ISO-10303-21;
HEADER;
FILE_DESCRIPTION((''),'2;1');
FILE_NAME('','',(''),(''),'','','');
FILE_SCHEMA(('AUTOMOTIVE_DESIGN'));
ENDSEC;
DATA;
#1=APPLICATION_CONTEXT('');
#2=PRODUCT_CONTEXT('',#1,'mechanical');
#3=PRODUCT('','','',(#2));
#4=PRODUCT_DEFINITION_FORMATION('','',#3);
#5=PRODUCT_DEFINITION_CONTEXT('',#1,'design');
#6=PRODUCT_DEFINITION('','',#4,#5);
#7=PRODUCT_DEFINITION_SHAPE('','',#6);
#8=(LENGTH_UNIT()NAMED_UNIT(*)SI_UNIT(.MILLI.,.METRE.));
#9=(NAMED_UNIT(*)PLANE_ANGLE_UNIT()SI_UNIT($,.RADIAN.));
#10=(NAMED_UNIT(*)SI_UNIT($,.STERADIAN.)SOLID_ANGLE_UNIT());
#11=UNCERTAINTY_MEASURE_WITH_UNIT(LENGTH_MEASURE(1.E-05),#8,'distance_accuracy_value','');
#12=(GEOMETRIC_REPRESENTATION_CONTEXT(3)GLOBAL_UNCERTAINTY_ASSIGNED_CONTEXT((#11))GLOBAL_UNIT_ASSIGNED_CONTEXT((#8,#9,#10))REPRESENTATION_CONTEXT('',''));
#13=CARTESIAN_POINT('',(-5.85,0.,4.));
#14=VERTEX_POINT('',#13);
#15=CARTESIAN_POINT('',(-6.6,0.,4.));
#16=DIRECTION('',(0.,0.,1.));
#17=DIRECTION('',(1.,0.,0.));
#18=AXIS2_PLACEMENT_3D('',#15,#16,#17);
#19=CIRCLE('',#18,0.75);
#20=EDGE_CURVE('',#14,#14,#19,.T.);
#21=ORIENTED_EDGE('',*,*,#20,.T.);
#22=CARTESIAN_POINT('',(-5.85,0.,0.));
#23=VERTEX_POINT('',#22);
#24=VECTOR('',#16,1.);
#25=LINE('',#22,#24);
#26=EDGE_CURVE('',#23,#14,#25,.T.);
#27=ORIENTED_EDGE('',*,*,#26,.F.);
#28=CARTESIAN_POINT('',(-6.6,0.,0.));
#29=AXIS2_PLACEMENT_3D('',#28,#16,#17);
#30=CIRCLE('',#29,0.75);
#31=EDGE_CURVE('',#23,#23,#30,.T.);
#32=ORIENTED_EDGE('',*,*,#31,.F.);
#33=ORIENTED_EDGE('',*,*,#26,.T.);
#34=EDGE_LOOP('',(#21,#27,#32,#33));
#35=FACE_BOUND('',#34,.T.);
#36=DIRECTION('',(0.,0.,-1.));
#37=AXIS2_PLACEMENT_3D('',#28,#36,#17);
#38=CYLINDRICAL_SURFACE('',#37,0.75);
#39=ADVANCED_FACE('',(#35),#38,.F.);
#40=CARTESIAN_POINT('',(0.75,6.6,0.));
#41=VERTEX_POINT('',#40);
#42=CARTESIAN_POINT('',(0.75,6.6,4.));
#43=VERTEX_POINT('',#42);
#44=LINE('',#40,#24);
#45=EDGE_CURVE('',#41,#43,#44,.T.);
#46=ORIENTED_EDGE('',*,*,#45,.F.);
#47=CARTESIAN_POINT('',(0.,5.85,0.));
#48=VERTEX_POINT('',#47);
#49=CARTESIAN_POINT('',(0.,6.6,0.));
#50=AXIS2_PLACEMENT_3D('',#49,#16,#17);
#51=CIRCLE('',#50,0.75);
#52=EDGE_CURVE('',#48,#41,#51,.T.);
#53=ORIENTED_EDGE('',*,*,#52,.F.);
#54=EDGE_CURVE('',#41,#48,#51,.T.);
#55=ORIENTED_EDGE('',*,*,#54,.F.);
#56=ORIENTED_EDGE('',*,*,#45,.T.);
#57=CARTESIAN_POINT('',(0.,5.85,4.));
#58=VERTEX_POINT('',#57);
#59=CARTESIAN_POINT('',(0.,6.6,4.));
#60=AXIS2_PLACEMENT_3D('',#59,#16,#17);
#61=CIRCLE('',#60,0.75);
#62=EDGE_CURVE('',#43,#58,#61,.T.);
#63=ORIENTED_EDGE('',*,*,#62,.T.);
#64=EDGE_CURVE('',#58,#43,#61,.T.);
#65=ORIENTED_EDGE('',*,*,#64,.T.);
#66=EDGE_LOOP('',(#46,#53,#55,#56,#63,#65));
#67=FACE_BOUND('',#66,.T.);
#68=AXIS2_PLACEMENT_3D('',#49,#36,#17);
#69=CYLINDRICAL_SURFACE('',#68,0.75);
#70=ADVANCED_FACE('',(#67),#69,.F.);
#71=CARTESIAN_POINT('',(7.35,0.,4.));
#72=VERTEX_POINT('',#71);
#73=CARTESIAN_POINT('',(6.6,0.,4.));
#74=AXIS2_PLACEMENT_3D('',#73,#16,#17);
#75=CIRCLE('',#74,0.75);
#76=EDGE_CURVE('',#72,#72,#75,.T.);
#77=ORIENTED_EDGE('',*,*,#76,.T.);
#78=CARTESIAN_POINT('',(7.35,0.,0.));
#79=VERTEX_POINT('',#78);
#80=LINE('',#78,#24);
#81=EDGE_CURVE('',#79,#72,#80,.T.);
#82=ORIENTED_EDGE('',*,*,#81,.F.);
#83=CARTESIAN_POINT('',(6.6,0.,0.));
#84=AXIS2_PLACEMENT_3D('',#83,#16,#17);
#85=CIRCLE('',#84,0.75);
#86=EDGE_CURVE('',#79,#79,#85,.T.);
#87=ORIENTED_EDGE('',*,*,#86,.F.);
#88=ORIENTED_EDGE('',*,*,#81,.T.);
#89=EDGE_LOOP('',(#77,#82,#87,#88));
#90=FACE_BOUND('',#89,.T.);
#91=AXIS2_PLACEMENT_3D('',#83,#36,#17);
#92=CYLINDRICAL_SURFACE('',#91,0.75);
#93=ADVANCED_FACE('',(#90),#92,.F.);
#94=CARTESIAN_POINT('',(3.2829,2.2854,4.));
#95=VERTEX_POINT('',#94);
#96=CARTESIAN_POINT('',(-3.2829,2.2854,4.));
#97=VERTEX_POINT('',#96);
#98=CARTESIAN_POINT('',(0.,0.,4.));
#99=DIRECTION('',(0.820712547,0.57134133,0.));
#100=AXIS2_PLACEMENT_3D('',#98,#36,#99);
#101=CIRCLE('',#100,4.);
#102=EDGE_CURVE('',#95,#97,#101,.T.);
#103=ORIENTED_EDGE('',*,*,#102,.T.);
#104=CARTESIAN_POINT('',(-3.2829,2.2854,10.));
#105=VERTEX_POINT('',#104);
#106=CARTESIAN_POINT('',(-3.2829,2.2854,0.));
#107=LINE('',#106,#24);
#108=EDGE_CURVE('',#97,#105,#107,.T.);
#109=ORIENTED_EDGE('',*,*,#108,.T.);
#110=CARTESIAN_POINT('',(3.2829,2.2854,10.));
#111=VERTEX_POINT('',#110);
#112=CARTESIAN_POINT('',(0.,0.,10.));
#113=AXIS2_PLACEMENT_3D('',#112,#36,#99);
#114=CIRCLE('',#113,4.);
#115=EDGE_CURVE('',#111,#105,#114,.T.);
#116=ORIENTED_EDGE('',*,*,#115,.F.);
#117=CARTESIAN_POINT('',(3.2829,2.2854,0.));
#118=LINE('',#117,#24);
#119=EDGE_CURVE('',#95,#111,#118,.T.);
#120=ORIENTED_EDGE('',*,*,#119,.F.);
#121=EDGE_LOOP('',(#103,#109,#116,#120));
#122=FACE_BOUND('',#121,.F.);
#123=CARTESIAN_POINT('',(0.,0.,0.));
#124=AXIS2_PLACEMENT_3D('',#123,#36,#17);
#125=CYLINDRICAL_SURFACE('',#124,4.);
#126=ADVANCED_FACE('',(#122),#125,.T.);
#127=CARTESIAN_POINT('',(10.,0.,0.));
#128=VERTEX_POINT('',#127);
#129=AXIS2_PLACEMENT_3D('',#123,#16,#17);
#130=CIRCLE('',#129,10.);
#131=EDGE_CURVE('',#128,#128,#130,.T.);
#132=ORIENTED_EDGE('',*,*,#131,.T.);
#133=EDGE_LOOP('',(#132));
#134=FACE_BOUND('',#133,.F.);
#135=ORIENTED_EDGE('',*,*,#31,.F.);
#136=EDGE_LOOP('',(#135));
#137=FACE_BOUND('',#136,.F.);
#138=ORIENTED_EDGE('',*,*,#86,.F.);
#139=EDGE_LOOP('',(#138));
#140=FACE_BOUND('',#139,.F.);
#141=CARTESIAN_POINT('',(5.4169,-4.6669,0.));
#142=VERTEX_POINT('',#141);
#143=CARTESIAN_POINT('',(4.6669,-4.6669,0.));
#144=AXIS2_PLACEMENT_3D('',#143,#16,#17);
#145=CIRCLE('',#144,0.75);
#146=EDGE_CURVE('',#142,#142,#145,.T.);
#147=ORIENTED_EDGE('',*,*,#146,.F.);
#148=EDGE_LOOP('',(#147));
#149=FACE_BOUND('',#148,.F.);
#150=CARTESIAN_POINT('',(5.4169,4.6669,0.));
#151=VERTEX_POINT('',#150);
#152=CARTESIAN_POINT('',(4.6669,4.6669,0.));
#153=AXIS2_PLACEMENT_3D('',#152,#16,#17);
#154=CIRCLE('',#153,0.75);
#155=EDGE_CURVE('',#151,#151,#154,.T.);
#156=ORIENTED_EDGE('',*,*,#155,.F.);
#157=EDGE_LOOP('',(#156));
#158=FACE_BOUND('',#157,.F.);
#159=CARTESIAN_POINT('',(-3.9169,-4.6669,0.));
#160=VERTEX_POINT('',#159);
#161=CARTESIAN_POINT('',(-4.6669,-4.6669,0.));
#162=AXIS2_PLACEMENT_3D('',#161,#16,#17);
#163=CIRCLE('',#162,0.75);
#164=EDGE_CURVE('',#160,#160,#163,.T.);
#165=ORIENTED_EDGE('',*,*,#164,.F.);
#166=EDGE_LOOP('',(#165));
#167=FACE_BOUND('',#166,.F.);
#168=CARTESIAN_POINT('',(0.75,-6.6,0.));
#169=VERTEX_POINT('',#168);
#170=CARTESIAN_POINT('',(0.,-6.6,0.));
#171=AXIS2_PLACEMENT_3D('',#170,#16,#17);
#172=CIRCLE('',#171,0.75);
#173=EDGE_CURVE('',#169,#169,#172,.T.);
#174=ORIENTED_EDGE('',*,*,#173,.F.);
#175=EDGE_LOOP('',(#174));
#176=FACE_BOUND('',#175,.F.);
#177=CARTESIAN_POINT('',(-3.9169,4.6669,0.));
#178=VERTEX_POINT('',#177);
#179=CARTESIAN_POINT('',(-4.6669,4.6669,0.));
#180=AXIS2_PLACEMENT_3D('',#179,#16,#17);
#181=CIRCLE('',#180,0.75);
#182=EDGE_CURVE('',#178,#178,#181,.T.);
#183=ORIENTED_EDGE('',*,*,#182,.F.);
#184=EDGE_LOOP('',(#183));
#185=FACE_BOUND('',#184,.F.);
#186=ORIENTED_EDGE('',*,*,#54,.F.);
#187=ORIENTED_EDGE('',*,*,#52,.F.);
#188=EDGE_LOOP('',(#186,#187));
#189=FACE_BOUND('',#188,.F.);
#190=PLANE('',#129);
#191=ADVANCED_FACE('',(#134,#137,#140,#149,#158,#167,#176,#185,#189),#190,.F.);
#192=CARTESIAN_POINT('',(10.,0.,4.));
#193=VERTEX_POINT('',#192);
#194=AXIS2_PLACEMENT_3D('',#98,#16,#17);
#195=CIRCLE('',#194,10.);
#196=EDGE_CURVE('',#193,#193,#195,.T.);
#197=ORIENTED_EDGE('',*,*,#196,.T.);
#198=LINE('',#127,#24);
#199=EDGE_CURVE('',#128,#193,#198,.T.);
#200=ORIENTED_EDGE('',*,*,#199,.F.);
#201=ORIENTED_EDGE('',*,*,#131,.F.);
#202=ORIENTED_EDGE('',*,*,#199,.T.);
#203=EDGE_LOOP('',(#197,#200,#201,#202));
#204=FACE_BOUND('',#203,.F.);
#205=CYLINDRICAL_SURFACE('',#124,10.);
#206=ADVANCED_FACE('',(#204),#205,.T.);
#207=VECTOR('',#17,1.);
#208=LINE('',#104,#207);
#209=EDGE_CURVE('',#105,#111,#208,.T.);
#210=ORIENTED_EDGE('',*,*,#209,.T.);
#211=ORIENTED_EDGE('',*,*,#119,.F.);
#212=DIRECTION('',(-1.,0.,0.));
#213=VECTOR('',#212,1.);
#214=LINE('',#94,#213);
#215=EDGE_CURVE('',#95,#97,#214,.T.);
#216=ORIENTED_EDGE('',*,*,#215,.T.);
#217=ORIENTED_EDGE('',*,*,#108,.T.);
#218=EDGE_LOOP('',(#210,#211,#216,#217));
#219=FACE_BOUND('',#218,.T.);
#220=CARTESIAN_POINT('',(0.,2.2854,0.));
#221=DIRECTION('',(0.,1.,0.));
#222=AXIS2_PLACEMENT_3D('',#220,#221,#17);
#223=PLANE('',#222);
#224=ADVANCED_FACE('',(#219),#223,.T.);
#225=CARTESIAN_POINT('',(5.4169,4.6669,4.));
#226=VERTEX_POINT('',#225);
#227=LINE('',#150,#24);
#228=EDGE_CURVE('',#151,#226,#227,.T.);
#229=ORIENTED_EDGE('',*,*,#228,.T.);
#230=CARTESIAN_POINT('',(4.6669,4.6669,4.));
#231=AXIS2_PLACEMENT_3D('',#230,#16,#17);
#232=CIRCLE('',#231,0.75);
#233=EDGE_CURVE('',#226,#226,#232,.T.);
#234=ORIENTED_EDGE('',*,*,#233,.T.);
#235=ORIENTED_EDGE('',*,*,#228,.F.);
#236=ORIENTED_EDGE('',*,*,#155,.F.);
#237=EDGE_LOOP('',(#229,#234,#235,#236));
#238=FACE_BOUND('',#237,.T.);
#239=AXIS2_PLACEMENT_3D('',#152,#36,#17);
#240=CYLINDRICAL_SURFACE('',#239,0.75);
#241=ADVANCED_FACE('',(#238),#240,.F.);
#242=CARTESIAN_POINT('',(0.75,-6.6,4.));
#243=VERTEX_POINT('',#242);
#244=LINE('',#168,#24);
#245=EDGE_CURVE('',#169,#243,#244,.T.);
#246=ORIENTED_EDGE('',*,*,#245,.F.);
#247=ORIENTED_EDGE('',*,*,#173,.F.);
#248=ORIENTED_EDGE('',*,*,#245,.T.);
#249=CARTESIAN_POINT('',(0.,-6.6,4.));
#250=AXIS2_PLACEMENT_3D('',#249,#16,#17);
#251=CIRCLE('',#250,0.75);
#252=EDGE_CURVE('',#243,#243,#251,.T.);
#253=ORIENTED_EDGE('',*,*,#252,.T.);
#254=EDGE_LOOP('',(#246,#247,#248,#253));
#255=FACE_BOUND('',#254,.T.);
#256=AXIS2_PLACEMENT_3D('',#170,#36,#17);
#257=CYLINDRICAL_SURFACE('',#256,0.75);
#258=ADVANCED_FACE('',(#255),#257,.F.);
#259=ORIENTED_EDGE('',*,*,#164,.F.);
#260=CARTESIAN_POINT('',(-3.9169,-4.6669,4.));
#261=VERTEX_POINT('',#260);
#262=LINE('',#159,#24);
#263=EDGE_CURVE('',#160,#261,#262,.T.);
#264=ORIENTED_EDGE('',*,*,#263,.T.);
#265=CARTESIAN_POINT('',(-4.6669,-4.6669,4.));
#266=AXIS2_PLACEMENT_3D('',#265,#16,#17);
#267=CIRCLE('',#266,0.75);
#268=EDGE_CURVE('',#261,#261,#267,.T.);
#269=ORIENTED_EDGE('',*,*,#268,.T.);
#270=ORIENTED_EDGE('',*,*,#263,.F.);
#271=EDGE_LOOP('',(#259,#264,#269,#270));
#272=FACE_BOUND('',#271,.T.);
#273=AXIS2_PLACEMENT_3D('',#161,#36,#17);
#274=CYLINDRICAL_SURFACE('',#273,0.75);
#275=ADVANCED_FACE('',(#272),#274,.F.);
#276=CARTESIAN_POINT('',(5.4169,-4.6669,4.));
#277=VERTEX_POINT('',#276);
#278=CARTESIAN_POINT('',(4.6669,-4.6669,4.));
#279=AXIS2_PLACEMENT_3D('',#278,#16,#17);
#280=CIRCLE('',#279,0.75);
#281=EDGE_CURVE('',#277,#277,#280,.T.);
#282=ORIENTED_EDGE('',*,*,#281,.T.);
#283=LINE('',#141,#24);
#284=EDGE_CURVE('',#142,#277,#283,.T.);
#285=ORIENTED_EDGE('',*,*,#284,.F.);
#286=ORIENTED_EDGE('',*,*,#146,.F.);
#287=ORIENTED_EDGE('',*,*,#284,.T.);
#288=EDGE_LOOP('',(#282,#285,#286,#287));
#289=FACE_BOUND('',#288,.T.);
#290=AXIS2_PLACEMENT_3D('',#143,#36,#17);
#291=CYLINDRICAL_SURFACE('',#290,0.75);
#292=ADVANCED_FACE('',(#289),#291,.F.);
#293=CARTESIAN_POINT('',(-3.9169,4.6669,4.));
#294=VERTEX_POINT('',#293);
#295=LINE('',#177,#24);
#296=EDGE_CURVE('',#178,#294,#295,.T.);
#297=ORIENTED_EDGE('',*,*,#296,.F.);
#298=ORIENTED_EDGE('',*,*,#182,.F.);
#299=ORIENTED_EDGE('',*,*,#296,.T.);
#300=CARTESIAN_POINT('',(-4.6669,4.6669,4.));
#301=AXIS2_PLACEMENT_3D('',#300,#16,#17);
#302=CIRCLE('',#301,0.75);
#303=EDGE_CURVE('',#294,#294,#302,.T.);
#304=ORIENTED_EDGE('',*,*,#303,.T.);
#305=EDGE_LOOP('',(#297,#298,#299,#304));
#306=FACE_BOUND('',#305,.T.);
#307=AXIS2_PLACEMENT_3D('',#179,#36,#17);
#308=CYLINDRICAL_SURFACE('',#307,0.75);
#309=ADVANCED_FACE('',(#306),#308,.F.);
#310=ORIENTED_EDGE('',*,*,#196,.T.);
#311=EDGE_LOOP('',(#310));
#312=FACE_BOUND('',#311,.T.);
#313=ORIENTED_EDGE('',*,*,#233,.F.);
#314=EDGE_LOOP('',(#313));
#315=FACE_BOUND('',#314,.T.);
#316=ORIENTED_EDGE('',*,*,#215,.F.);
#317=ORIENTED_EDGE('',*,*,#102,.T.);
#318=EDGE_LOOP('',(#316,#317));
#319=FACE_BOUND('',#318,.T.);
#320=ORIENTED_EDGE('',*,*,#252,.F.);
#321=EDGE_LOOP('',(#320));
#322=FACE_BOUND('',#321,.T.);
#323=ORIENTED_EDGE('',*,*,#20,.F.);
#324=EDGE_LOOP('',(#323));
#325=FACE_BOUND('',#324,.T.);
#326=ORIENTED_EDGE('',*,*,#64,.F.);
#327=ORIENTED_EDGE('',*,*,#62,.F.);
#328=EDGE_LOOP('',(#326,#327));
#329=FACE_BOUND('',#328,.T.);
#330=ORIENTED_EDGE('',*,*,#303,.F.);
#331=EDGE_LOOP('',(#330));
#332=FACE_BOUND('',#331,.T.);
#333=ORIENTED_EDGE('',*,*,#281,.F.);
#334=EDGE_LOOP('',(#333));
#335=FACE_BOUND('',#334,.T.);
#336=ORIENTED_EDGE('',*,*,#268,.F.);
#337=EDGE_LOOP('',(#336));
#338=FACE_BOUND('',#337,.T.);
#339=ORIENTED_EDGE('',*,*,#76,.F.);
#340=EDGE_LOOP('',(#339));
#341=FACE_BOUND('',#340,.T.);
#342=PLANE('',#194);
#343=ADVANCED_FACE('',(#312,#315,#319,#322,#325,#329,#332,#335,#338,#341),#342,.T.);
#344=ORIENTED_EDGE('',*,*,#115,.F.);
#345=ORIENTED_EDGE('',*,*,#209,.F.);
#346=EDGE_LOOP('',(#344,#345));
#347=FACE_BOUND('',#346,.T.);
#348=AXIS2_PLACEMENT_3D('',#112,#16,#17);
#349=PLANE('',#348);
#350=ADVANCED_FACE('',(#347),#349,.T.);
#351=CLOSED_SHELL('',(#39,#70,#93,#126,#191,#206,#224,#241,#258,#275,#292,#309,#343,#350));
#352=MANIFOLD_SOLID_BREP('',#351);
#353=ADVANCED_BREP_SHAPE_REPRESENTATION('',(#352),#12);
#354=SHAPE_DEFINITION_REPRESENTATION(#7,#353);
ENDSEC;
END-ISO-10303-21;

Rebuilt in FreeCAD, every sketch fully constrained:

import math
import FreeCAD as App
import Part
import Sketcher
from FreeCAD import Vector
Q = App.Units.Quantity

doc = App.newDocument("Part")
body = doc.addObject("PartDesign::Body", "Body")

# Sketch on XY plane
sketch1 = body.newObject("Sketcher::SketchObject", "Sketch")
sketch1.AttachmentSupport = (doc.getObject("XY_Plane"), [""])
sketch1.MapMode = "FlatFace"
sketch1.addGeometry([
    Part.Circle(Vector(0, 0, 0), Vector(0, 0, 1), 10),  # 0
    Part.Circle(Vector(-4.7, -4.7, 0), Vector(0, 0, 1), 0.8),  # 1
    Part.Circle(Vector(0, -6.6, 0), Vector(0, 0, 1), 0.8),  # 2
    Part.Circle(Vector(4.7, -4.7, 0), Vector(0, 0, 1), 0.8),  # 3
    Part.Circle(Vector(-6.6, 0, 0), Vector(0, 0, 1), 0.8),  # 4
    Part.Circle(Vector(-4.7, 4.7, 0), Vector(0, 0, 1), 0.8),  # 5
    Part.LineSegment(Vector(-3.3, 2.3, 0), Vector(3.3, 2.3, 0)),  # 6
    Part.ArcOfCircle(Part.Circle(Vector(0, 0, 0), Vector(0, 0, 1), 4), math.radians(145), math.radians(395)),  # 7
    Part.Circle(Vector(4.7, 4.7, 0), Vector(0, 0, 1), 0.8),  # 8
    Part.Circle(Vector(6.6, 0, 0), Vector(0, 0, 1), 0.8),  # 9
    Part.Circle(Vector(0, 6.6, 0), Vector(0, 0, 1), 0.8),  # 10
], False)
sketch1.addConstraint([
    Sketcher.Constraint("Coincident", 6, 1, 7, 1),
    Sketcher.Constraint("Coincident", 7, 2, 6, 2),
    Sketcher.Constraint("Horizontal", 6),
    Sketcher.Constraint("Coincident", 0, 3, -1, 1),
    Sketcher.Constraint("Coincident", 7, 3, -1, 1),
    Sketcher.Constraint("Equal", 1, 2),
    Sketcher.Constraint("Equal", 2, 3),
    Sketcher.Constraint("Equal", 3, 4),
    Sketcher.Constraint("Equal", 4, 5),
    Sketcher.Constraint("Equal", 5, 8),
    Sketcher.Constraint("Equal", 8, 9),
    Sketcher.Constraint("Equal", 9, 10),
    Sketcher.Constraint("Symmetric", 3, 3, 5, 3, -1, 1),
    Sketcher.Constraint("Symmetric", 1, 3, 8, 3, -1, 1),
    Sketcher.Constraint("Symmetric", 4, 3, 9, 3, -1, 1),
    Sketcher.Constraint("Symmetric", 2, 3, 10, 3, -1, 1),
    Sketcher.Constraint("Symmetric", 1, 3, 3, 3, -2),
    Sketcher.Constraint("PointOnObject", 2, 3, -2),
    Sketcher.Constraint("PointOnObject", 4, 3, -1),
    Sketcher.Constraint("Diameter", 0, Q("20 mm")),
    Sketcher.Constraint("Radius", 7, Q("4 mm")),
    Sketcher.Constraint("Diameter", 1, Q("1.5 mm")),
    Sketcher.Constraint("DistanceY", 2, 3, -1, 1, Q("6.6 mm")),
    Sketcher.Constraint("DistanceX", 4, 3, -1, 1, Q("6.6 mm")),
    Sketcher.Constraint("DistanceY", -1, 1, 6, 1, Q("2.2854 mm")),
    Sketcher.Constraint("DistanceX", 1, 3, -1, 1, Q("4.667 mm")),
    Sketcher.Constraint("DistanceY", 1, 3, -1, 1, Q("4.667 mm")),
])
pad1 = body.newObject("PartDesign::Pad", "Pad")
pad1.Profile = sketch1
pad1.Length = 4

# Sketch on XY plane
sketch2 = body.newObject("Sketcher::SketchObject", "Sketch001")
sketch2.AttachmentSupport = (doc.getObject("XY_Plane"), [""])
sketch2.MapMode = "FlatFace"
sketch2.addGeometry([
    Part.LineSegment(Vector(3.3, 2.3, 0), Vector(-3.3, 2.3, 0)),
    Part.ArcOfCircle(Part.Circle(Vector(0, 0, 0), Vector(0, 0, 1), 4), math.radians(145), math.radians(395)),
], False)
sketch2.addConstraint([
    Sketcher.Constraint("Coincident", 0, 1, 1, 2),
    Sketcher.Constraint("Coincident", 1, 1, 0, 2),
    Sketcher.Constraint("Horizontal", 0),
    Sketcher.Constraint("Coincident", 1, 3, -1, 1),
    Sketcher.Constraint("Radius", 1, Q("4 mm")),
    Sketcher.Constraint("DistanceY", -1, 1, 0, 1, Q("2.2854 mm")),
])
pad2 = body.newObject("PartDesign::Pad", "Pad001")
pad2.Profile = sketch2
pad2.Length = 10

doc.recompute()
